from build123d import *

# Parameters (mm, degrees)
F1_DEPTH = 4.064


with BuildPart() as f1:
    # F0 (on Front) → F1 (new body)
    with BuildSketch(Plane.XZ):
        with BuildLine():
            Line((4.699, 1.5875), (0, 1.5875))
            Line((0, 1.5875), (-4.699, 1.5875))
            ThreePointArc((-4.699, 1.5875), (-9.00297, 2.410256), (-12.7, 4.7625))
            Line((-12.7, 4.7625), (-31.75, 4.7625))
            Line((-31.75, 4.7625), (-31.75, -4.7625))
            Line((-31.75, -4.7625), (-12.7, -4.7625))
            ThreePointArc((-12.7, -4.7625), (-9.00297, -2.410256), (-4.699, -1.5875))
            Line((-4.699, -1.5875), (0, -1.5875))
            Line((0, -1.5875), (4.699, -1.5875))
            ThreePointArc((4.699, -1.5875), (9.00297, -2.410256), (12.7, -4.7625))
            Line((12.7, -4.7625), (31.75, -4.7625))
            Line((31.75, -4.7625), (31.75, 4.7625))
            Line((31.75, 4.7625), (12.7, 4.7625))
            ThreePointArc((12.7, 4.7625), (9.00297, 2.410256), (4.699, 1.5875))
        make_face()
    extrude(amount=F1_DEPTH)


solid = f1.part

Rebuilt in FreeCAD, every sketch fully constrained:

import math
import FreeCAD as App
import Part
import Sketcher
from FreeCAD import Vector
Q = App.Units.Quantity

doc = App.newDocument("Part")
body = doc.addObject("PartDesign::Body", "Body")

sketch1 = doc.addObject("Sketcher::SketchObject", "Sketch")
body.addObject(sketch1)
sketch1.AttachmentSupport = (doc.XZ_Plane, [""])
sketch1.MapMode = "FlatFace"
sketch1.addGeometry([
    Part.LineSegment(Vector(4.699, 1.5875, 0), Vector(-4.699, 1.5875, 0)),
    Part.ArcOfCircle(Part.Circle(Vector(-4.699, 13.25626, 0), Vector(0, 0, 1), 11.66876), math.radians(-133.288871), math.radians(-89.999999)),
    Part.LineSegment(Vector(-12.7, 4.7625, 0), Vector(-31.75, 4.7625, 0)),
    Part.LineSegment(Vector(-31.75, 4.7625, 0), Vector(-31.75, -4.7625, 0)),
    Part.LineSegment(Vector(-31.75, -4.7625, 0), Vector(-12.7, -4.7625, 0)),
    Part.ArcOfCircle(Part.Circle(Vector(-4.699, -13.25626, 0), Vector(0, 0, 1), 11.66876), math.radians(89.999999), math.radians(133.288871)),
    Part.LineSegment(Vector(-4.699, -1.5875, 0), Vector(4.699, -1.5875, 0)),
    Part.ArcOfCircle(Part.Circle(Vector(4.699, -13.25626, 0), Vector(0, 0, 1), 11.66876), math.radians(46.711129), math.radians(90.000001)),
    Part.LineSegment(Vector(12.7, -4.7625, 0), Vector(31.75, -4.7625, 0)),
    Part.LineSegment(Vector(31.75, -4.7625, 0), Vector(31.75, 4.7625, 0)),
    Part.LineSegment(Vector(31.75, 4.7625, 0), Vector(12.7, 4.7625, 0)),
    Part.ArcOfCircle(Part.Circle(Vector(4.699, 13.25626, 0), Vector(0, 0, 1), 11.66876), math.radians(-90.000001), math.radians(-46.711129)),
], False)
sketch1.addConstraint([
    Sketcher.Constraint("Tangent", 0, 2, 1, 2),
    Sketcher.Constraint("Coincident", 1, 1, 2, 1),
    Sketcher.Constraint("Coincident", 2, 2, 3, 1),
    Sketcher.Constraint("Coincident", 3, 2, 4, 1),
    Sketcher.Constraint("Coincident", 4, 2, 5, 2),
    Sketcher.Constraint("Tangent", 5, 1, 6, 1),
    Sketcher.Constraint("Tangent", 6, 2, 7, 2),
    Sketcher.Constraint("Coincident", 7, 1, 8, 1),
    Sketcher.Constraint("Coincident", 8, 2, 9, 1),
    Sketcher.Constraint("Coincident", 9, 2, 10, 1),
    Sketcher.Constraint("Coincident", 10, 2, 11, 2),
    Sketcher.Constraint("Tangent", 11, 1, 0, 1),
    Sketcher.Constraint("Horizontal", 0),
    Sketcher.Constraint("Horizontal", 2),
    Sketcher.Constraint("Vertical", 3),
    Sketcher.Constraint("Horizontal", 4),
    Sketcher.Constraint("Horizontal", 6),
    Sketcher.Constraint("Horizontal", 8),
    Sketcher.Constraint("Vertical", 9),
    Sketcher.Constraint("Horizontal", 10),
    Sketcher.Constraint("Equal", 1, 5),
    Sketcher.Constraint("Equal", 5, 7),
    Sketcher.Constraint("Equal", 7, 11),
    Sketcher.Constraint("Symmetric", 1, 3, 7, 3, -1, 1),
    Sketcher.Constraint("Symmetric", 2, 2, 8, 2, -1, 1),
    Sketcher.Constraint("Symmetric", 4, 2, 10, 2, -1, 1),
    Sketcher.Constraint("Symmetric", 4, 2, 7, 1, -2),
    Sketcher.Constraint("DistanceX", 0, 2, 0, 1, Q("0.37 in")),
    Sketcher.Constraint("DistanceX", 2, 2, 2, 1, Q("0.75 in")),
    Sketcher.Constraint("DistanceX", 1, 1, -1, 1, Q("0.5 in")),
    Sketcher.Constraint("Radius", 1, Q("0.4594 in")),
    Sketcher.Constraint("DistanceY", 3, 2, 3, 1, Q("0.375 in")),
])
pad1 = doc.addObject("PartDesign::Pad", "Pad")
body.addObject(pad1)
pad1.Profile = sketch1
pad1.Length = Q("0.16 in")

doc.recompute()
